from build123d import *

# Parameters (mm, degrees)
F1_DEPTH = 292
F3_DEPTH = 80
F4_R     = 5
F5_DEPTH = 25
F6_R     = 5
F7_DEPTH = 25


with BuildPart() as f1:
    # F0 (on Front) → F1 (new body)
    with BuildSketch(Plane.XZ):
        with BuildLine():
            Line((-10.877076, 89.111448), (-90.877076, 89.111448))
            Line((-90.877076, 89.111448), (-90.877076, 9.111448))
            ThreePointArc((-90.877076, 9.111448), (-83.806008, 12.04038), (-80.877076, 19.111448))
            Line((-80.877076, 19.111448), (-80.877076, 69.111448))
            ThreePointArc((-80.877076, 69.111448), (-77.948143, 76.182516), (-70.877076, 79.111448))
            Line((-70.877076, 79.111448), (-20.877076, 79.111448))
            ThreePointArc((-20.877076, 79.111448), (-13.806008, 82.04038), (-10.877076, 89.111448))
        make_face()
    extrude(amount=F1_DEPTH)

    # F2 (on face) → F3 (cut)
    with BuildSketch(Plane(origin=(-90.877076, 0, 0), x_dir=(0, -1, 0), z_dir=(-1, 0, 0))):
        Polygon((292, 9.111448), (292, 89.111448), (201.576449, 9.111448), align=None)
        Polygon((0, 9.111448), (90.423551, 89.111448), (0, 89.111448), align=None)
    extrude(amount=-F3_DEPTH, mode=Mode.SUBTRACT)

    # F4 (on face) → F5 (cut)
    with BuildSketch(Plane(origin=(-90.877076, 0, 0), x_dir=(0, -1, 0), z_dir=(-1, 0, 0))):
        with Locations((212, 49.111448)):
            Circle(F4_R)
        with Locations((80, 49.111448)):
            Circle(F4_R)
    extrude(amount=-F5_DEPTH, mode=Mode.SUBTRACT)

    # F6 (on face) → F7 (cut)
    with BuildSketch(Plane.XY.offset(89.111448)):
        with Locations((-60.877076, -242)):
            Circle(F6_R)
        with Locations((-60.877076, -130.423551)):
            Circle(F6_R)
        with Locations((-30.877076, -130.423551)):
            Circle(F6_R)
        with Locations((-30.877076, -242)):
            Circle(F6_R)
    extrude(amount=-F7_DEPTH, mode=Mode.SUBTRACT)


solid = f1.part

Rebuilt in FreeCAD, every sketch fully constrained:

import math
import FreeCAD as App
import Part
import Sketcher
from FreeCAD import Vector
Q = App.Units.Quantity

doc = App.newDocument("Part")
body = doc.addObject("PartDesign::Body", "Body")

# Sketch on XZ plane
sketch1 = body.newObject("Sketcher::SketchObject", "Sketch")
sketch1.AttachmentSupport = (doc.getObject("XZ_Plane"), [""])
sketch1.MapMode = "FlatFace"
sketch1.addGeometry([
    Part.LineSegment(Vector(-11, 89, 0), Vector(-91, 89, 0)),  # 0
    Part.LineSegment(Vector(-91, 89, 0), Vector(-91, 9, 0)),  # 1
    Part.ArcOfCircle(Part.Circle(Vector(-91, 19, 0), Vector(0, 0, 1), 10), math.radians(-90), math.radians(0)),  # 2
    Part.LineSegment(Vector(-81, 19, 0), Vector(-81, 69, 0)),  # 3
    Part.ArcOfCircle(Part.Circle(Vector(-71, 69, 0), Vector(0, 0, 1), 10), math.radians(90), math.radians(180)),  # 4
    Part.LineSegment(Vector(-71, 79, 0), Vector(-21, 79, 0)),  # 5
    Part.ArcOfCircle(Part.Circle(Vector(-21, 89, 0), Vector(0, 0, 1), 10), math.radians(-90), math.radians(0)),  # 6
], False)
sketch1.addConstraint([
    Sketcher.Constraint("Coincident", 0, 2, 1, 1),
    Sketcher.Constraint("Coincident", 1, 2, 2, 1),
    Sketcher.Constraint("Tangent", 2, 2, 3, 1),
    Sketcher.Constraint("Tangent", 3, 2, 4, 2),
    Sketcher.Constraint("Tangent", 4, 1, 5, 1),
    Sketcher.Constraint("Tangent", 5, 2, 6, 1),
    Sketcher.Constraint("Coincident", 6, 2, 0, 1),
    Sketcher.Constraint("Horizontal", 0),
    Sketcher.Constraint("Vertical", 1),
    Sketcher.Constraint("Vertical", 3),
    Sketcher.Constraint("Horizontal", 5),
    Sketcher.Constraint("Equal", 2, 4),
    Sketcher.Constraint("Equal", 4, 6),
    Sketcher.Constraint("Horizontal", 6, 3, 0, 2),
    Sketcher.Constraint("Vertical", 2, 3, 0, 2),
    Sketcher.Constraint("Equal", 0, 1),
    Sketcher.Constraint("Radius", 2, 9.999999),
    Sketcher.Constraint("DistanceX", 0, 2, 0, 1, 80.0),
    Sketcher.Constraint("DistanceX", 2, 3, -1, 1, 90.877075),
    Sketcher.Constraint("DistanceY", -1, 1, 2, 3, 19.111447),
])
pad1 = body.newObject("PartDesign::Pad", "Pad")
pad1.Profile = sketch1
pad1.Length = 292

# Sketch on YZ plane
sketch2 = body.newObject("Sketcher::SketchObject", "Sketch001")
sketch2.AttachmentSupport = (doc.getObject("YZ_Plane"), [""])
sketch2.MapMode = "FlatFace"
sketch2.AttachmentOffset = App.Placement(Vector(0, 0, -90.877076), App.Rotation())
sketch2.addGeometry([
    Part.LineSegment(Vector(-292, 9, 0), Vector(-292, 89, 0)),  # 0
    Part.LineSegment(Vector(-292, 89, 0), Vector(-202, 9, 0)),  # 1
    Part.LineSegment(Vector(-202, 9, 0), Vector(-292, 9, 0)),  # 2
    Part.LineSegment(Vector(0, 9, 0), Vector(-90, 89, 0)),  # 3
    Part.LineSegment(Vector(-90, 89, 0), Vector(0, 89, 0)),  # 4
    Part.LineSegment(Vector(0, 89, 0), Vector(0, 9, 0)),  # 5
], False)
sketch2.addConstraint([
    Sketcher.Constraint("Coincident", 0, 2, 1, 1),
    Sketcher.Constraint("Coincident", 1, 2, 2, 1),
    Sketcher.Constraint("Coincident", 2, 2, 0, 1),
    Sketcher.Constraint("Coincident", 3, 2, 4, 1),
    Sketcher.Constraint("Coincident", 4, 2, 5, 1),
    Sketcher.Constraint("Coincident", 5, 2, 3, 1),
    Sketcher.Constraint("Vertical", 0),
    Sketcher.Constraint("Horizontal", 2),
    Sketcher.Constraint("Horizontal", 4),
    Sketcher.Constraint("Vertical", 5),
    Sketcher.Constraint("PointOnObject", 4, 2, -2),
    Sketcher.Constraint("Parallel", 1, 3),
    Sketcher.Constraint("Horizontal", 0, 2, 3, 2),
    Sketcher.Constraint("Horizontal", 2, 2, 5, 2),
    Sketcher.Constraint("DistanceY", 0, 1, 0, 2, 80.0),
    Sketcher.Constraint("DistanceX", 0, 2, -1, 1, 292.0),
    Sketcher.Constraint("Angle", 1, Q("-41.5 deg")),
    Sketcher.Constraint("DistanceY", -1, 1, 0, 2, 89.111448),
])
pocket1 = body.newObject("PartDesign::Pocket", "Pocket")
pocket1.Profile = sketch2
pocket1.Length = 80
pocket1.Reversed = True

# Sketch on YZ plane
sketch3 = body.newObject("Sketcher::SketchObject", "Sketch002")
sketch3.AttachmentSupport = (doc.getObject("YZ_Plane"), [""])
sketch3.MapMode = "FlatFace"
sketch3.AttachmentOffset = App.Placement(Vector(0, 0, -90.877076), App.Rotation())
sketch3.addGeometry([
    Part.Circle(Vector(-212, 49, 0), Vector(0, 0, 1), 5),
    Part.Circle(Vector(-80, 49, 0), Vector(0, 0, 1), 5),
], False)
sketch3.addConstraint([
    Sketcher.Constraint("Equal", 0, 1),
    Sketcher.Constraint("Horizontal", 0, 3, 1, 3),
    Sketcher.Constraint("Diameter", 0, 10.0),
    Sketcher.Constraint("DistanceX", 0, 3, -1, 1, 212.0),
    Sketcher.Constraint("DistanceX", 1, 3, -1, 1, 80.0),
    Sketcher.Constraint("DistanceY", -1, 1, 0, 3, 49.111448),
])
pocket2 = body.newObject("PartDesign::Pocket", "Pocket001")
pocket2.Profile = sketch3
pocket2.Length = 25
pocket2.Reversed = True

# Sketch on XY plane
sketch4 = body.newObject("Sketcher::SketchObject", "Sketch003")
sketch4.AttachmentSupport = (doc.getObject("XY_Plane"), [""])
sketch4.MapMode = "FlatFace"
sketch4.AttachmentOffset = App.Placement(Vector(0, 0, 89.111448), App.Rotation())
sketch4.addGeometry([
    Part.Circle(Vector(-61, -242, 0), Vector(0, 0, 1), 5),
    Part.Circle(Vector(-61, -130, 0), Vector(0, 0, 1), 5),
    Part.Circle(Vector(-31, -130, 0), Vector(0, 0, 1), 5),
    Part.Circle(Vector(-31, -242, 0), Vector(0, 0, 1), 5),
], False)
sketch4.addConstraint([
    Sketcher.Constraint("Equal", 0, 1),
    Sketcher.Constraint("Equal", 1, 2),
    Sketcher.Constraint("Equal", 2, 3),
    Sketcher.Constraint("Horizontal", 1, 3, 2, 3),
    Sketcher.Constraint("Horizontal", 0, 3, 3, 3),
    Sketcher.Constraint("Vertical", 0, 3, 1, 3),
    Sketcher.Constraint("Vertical", 2, 3, 3, 3),
    Sketcher.Constraint("Diameter", 0, 10.0),
    Sketcher.Constraint("DistanceY", 0, 3, -1, 1, 242.0),
    Sketcher.Constraint("DistanceX", 1, 3, 2, 3, 30.0),
    Sketcher.Constraint("DistanceY", 1, 3, -1, 1, 130.423551),
    Sketcher.Constraint("DistanceX", 0, 3, -1, 1, 60.877076),
])
pocket3 = body.newObject("PartDesign::Pocket", "Pocket002")
pocket3.Profile = sketch4
pocket3.Length = 25

doc.recompute()
